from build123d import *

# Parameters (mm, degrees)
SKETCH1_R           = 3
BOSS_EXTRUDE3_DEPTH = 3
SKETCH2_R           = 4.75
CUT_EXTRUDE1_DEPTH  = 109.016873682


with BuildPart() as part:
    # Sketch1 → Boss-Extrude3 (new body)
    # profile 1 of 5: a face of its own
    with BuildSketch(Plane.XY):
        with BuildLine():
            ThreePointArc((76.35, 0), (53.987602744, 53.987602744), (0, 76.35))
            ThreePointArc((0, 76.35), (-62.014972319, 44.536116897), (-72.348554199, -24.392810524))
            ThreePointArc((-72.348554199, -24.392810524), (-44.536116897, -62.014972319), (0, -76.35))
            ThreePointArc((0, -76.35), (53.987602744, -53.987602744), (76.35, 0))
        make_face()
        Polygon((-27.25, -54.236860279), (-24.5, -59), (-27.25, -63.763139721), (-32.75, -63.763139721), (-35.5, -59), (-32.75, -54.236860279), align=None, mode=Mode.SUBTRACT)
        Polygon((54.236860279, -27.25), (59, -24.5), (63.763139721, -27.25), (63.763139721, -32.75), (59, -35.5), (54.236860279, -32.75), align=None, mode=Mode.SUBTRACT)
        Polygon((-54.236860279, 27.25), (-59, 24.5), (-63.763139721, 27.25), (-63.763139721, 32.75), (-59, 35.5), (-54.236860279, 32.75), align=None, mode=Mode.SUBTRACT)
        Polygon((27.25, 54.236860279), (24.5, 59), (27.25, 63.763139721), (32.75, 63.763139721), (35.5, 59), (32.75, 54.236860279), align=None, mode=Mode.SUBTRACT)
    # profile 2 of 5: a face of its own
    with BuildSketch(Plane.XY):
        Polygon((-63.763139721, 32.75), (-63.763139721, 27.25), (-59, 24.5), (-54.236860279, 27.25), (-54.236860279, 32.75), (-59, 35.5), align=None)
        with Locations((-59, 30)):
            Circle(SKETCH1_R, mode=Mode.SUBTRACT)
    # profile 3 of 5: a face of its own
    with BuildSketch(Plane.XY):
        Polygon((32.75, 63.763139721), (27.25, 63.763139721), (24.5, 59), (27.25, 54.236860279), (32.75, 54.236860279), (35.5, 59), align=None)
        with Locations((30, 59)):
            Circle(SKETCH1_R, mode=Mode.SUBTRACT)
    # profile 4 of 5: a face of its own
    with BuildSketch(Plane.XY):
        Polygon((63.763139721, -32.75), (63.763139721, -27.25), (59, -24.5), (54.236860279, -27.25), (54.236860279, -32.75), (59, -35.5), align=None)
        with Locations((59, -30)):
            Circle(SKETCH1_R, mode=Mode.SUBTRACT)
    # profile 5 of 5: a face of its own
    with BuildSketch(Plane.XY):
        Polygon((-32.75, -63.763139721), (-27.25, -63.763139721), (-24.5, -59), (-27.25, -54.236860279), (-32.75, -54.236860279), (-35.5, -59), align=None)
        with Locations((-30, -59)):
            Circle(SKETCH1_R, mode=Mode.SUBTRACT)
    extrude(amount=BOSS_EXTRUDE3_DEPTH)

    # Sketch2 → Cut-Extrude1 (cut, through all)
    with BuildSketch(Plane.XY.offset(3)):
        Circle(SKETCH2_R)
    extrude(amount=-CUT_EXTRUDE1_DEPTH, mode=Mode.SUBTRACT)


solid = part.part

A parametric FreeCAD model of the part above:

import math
import FreeCAD as App
import Part
import Sketcher

V = App.Vector

doc = App.newDocument("Part")
body = doc.addObject("PartDesign::Body", "Body")

# Sketch on XY plane
sketch1 = body.newObject("Sketcher::SketchObject", "Sketch")
sketch1.AttachmentSupport = (doc.getObject("XY_Plane"), [""])
sketch1.MapMode = "FlatFace"
sketch1.addGeometry([
    Part.ArcOfCircle(Part.Circle(V(0, 0, 0), V(0, 0, 1), 76.35), math.radians(0), math.radians(90)),  # 0
    Part.ArcOfCircle(Part.Circle(V(0, 0, 0), V(0, 0, 1), 76.35), math.radians(90), math.radians(198.631886)),  # 1
    Part.ArcOfCircle(Part.Circle(V(0, 0, 0), V(0, 0, 1), 76.35), math.radians(-161.368114), math.radians(-90)),  # 2
    Part.ArcOfCircle(Part.Circle(V(0, 0, 0), V(0, 0, 1), 76.35), math.radians(-90), math.radians(0)),  # 3
    Part.Circle(V(-30, -59, 0), V(0, 0, 1), 3),  # 4
    Part.Circle(V(59, -30, 0), V(0, 0, 1), 3),  # 5
    Part.Circle(V(-59, 30, 0), V(0, 0, 1), 3),  # 6
    Part.Circle(V(30, 59, 0), V(0, 0, 1), 3),  # 7
], False)
sketch1.addConstraint([
    Sketcher.Constraint("Tangent", 0, 2, 1, 1),
    Sketcher.Constraint("Tangent", 1, 2, 2, 1),
    Sketcher.Constraint("Tangent", 2, 2, 3, 1),
    Sketcher.Constraint("Tangent", 3, 2, 0, 1),
    Sketcher.Constraint("Coincident", 0, 3, -1, 1),
    Sketcher.Constraint("Equal", 0, 1),
    Sketcher.Constraint("Equal", 4, 5),
    Sketcher.Constraint("Equal", 5, 6),
    Sketcher.Constraint("Equal", 6, 7),
    Sketcher.Constraint("Symmetric", 5, 3, 6, 3, -1, 1),
    Sketcher.Constraint("Symmetric", 4, 3, 7, 3, -1, 1),
    Sketcher.Constraint("PointOnObject", 0, 2, -2),
    Sketcher.Constraint("PointOnObject", 2, 2, -2),
    Sketcher.Constraint("PointOnObject", 3, 2, -1),
    Sketcher.Constraint("Diameter", 4, 6.0),
    Sketcher.Constraint("Radius", 0, 76.35),
    Sketcher.Constraint("DistanceX", 4, 3, -1, 1, 30.0),
    Sketcher.Constraint("DistanceY", 4, 3, -1, 1, 59.0),
    Sketcher.Constraint("DistanceX", -1, 1, 5, 3, 59.0),
    Sketcher.Constraint("DistanceY", 5, 3, -1, 1, 30.0),
    Sketcher.Constraint("DistanceY", 1, 2, -1, 1, 24.392811),
])
pad1 = body.newObject("PartDesign::Pad", "Pad")
pad1.Profile = sketch1
pad1.Length = 3

# Sketch on XY plane
sketch2 = body.newObject("Sketcher::SketchObject", "Sketch001")
sketch2.AttachmentSupport = (doc.getObject("XY_Plane"), [""])
sketch2.MapMode = "FlatFace"
sketch2.AttachmentOffset = App.Placement(V(0, 0, 3), App.Rotation())
sketch2.addGeometry(Part.Circle(V(0, 0, 0), V(0, 0, 1), 4.75), False)
sketch2.addConstraint([
    Sketcher.Constraint("Coincident", 0, 3, -1, 1),
    Sketcher.Constraint("Diameter", 0, 9.5),
])
pocket1 = body.newObject("PartDesign::Pocket", "Pocket")
pocket1.Profile = sketch2
pocket1.Type = "ThroughAll"

doc.recompute()
